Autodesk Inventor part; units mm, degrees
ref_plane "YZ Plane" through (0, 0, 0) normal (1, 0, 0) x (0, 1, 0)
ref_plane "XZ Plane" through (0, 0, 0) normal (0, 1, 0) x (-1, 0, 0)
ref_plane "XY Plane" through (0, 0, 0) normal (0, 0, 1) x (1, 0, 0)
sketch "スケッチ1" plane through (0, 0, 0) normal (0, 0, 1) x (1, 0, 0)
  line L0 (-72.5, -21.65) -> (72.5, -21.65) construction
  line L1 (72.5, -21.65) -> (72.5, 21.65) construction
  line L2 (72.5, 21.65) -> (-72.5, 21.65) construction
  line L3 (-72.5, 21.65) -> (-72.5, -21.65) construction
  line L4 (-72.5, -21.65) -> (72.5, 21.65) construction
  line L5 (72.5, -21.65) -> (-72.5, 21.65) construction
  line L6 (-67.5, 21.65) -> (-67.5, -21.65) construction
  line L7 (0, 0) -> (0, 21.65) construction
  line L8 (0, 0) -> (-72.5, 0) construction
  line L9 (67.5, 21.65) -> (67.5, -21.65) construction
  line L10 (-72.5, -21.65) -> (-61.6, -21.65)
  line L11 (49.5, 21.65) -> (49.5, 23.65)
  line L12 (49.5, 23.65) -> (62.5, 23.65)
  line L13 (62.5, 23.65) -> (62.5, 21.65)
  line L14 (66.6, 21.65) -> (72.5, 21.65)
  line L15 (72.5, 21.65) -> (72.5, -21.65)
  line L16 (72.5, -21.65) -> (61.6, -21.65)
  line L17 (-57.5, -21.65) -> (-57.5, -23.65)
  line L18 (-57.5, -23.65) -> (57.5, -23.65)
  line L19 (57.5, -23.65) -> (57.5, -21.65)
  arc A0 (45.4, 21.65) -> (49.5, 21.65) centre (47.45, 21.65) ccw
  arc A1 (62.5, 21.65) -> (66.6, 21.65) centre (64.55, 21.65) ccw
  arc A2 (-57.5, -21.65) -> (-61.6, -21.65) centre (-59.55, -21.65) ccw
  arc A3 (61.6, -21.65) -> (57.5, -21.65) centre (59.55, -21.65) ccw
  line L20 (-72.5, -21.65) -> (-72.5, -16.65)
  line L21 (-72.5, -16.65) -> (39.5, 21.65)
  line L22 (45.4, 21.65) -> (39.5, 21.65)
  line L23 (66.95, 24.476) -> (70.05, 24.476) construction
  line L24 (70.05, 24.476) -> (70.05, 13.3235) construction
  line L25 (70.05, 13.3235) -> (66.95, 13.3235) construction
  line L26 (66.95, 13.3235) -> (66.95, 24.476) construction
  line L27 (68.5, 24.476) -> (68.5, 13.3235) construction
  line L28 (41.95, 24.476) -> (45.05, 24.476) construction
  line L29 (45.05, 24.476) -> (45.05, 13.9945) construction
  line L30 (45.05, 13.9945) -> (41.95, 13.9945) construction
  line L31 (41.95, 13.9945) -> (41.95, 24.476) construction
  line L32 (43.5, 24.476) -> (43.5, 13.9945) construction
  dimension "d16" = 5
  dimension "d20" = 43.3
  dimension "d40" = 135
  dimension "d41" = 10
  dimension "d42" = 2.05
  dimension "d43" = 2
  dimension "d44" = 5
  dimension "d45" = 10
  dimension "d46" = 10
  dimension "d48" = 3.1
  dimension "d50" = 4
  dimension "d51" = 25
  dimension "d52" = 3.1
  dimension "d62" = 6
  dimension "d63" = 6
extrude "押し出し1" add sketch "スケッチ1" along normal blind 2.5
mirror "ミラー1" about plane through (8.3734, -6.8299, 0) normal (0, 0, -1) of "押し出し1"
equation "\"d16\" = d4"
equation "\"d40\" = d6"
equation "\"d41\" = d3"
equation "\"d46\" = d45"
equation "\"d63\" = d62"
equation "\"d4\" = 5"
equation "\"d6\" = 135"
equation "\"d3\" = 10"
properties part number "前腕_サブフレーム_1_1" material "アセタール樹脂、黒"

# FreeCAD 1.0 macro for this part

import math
import FreeCAD as App
import Part
import Sketcher

V = App.Vector

doc = App.newDocument("Part")
body = doc.addObject("PartDesign::Body", "Body")

sketch1 = body.newObject("Sketcher::SketchObject", "Sketch")
sketch1.AttachmentSupport = (doc.getObject("XY_Plane"), [""])
sketch1.MapMode = "FlatFace"
sketch1.addGeometry([
    Part.LineSegment(V(-72.5, -16.65, 0), V(-72.5, -21.65, 0)),
    Part.LineSegment(V(-72.5, -21.65, 0), V(-61.6, -21.65, 0)),
    Part.ArcOfCircle(Part.Circle(V(-59.55, -21.65, 0), V(0, 0, 1), 2.05), math.radians(0), math.radians(180)),
    Part.LineSegment(V(-57.5, -21.65, 0), V(-57.5, -23.65, 0)),
    Part.LineSegment(V(-57.5, -23.65, 0), V(57.5, -23.65, 0)),
    Part.LineSegment(V(57.5, -23.65, 0), V(57.5, -21.65, 0)),
    Part.ArcOfCircle(Part.Circle(V(59.55, -21.65, 0), V(0, 0, 1), 2.05), math.radians(0), math.radians(180)),
    Part.LineSegment(V(61.6, -21.65, 0), V(72.5, -21.65, 0)),
    Part.LineSegment(V(72.5, -21.65, 0), V(72.5, 21.65, 0)),
    Part.LineSegment(V(72.5, 21.65, 0), V(66.6, 21.65, 0)),
    Part.ArcOfCircle(Part.Circle(V(64.55, 21.65, 0), V(0, 0, 1), 2.05), math.radians(180), math.radians(360)),
    Part.LineSegment(V(62.5, 21.65, 0), V(62.5, 23.65, 0)),
    Part.LineSegment(V(62.5, 23.65, 0), V(49.5, 23.65, 0)),
    Part.LineSegment(V(49.5, 23.65, 0), V(49.5, 21.65, 0)),
    Part.ArcOfCircle(Part.Circle(V(47.45, 21.65, 0), V(0, 0, 1), 2.05), math.radians(180), math.radians(360)),
    Part.LineSegment(V(45.4, 21.65, 0), V(39.5, 21.65, 0)),
    Part.LineSegment(V(39.5, 21.65, 0), V(-72.5, -16.65, 0)),
], False)
sketch1.addConstraint([
    Sketcher.Constraint("Coincident", 0, 2, 1, 1),
    Sketcher.Constraint("Coincident", 1, 2, 2, 2),
    Sketcher.Constraint("Tangent", 2, 1, 3, 1),
    Sketcher.Constraint("Coincident", 3, 2, 4, 1),
    Sketcher.Constraint("Coincident", 4, 2, 5, 1),
    Sketcher.Constraint("Tangent", 5, 2, 6, 2),
    Sketcher.Constraint("Coincident", 6, 1, 7, 1),
    Sketcher.Constraint("Coincident", 7, 2, 8, 1),
    Sketcher.Constraint("Coincident", 8, 2, 9, 1),
    Sketcher.Constraint("Coincident", 9, 2, 10, 2),
    Sketcher.Constraint("Tangent", 10, 1, 11, 1),
    Sketcher.Constraint("Coincident", 11, 2, 12, 1),
    Sketcher.Constraint("Coincident", 12, 2, 13, 1),
    Sketcher.Constraint("Tangent", 13, 2, 14, 2),
    Sketcher.Constraint("Coincident", 14, 1, 15, 1),
    Sketcher.Constraint("Coincident", 15, 2, 16, 1),
    Sketcher.Constraint("Coincident", 16, 2, 0, 1),
    Sketcher.Constraint("Vertical", 0),
    Sketcher.Constraint("Horizontal", 1),
    Sketcher.Constraint("Vertical", 3),
    Sketcher.Constraint("Horizontal", 4),
    Sketcher.Constraint("Vertical", 5),
    Sketcher.Constraint("Horizontal", 7),
    Sketcher.Constraint("Vertical", 8),
    Sketcher.Constraint("Horizontal", 9),
    Sketcher.Constraint("Vertical", 11),
    Sketcher.Constraint("Horizontal", 12),
    Sketcher.Constraint("Vertical", 13),
    Sketcher.Constraint("Horizontal", 15),
    Sketcher.Constraint("Equal", 2, 6),
    Sketcher.Constraint("Equal", 6, 10),
    Sketcher.Constraint("Equal", 10, 14),
    Sketcher.Constraint("Symmetric", 0, 2, 8, 2, -1, 1),
    Sketcher.Constraint("Symmetric", 2, 3, 6, 3, -2),
    Sketcher.Constraint("Horizontal", 10, 3, 14, 3),
    Sketcher.Constraint("Horizontal", 6, 3, 0, 2),
    Sketcher.Constraint("Horizontal", 5, 2, 6, 1),
    Sketcher.Constraint("Horizontal", 14, 3, 8, 2),
    Sketcher.Constraint("Horizontal", 13, 2, 14, 1),
    Sketcher.Constraint("Equal", 9, 15),
    Sketcher.Constraint("Equal", 5, 11),
    Sketcher.Constraint("DistanceY", 0, 2, 0, 1, 5.0),
    Sketcher.Constraint("DistanceY", 3, 2, 3, 1, 2.0),
    Sketcher.Constraint("Radius", 2, 2.05),
    Sketcher.Constraint("DistanceY", 8, 1, 8, 2, 43.3),
    Sketcher.Constraint("DistanceX", 6, 3, 10, 3, 5.0),
    Sketcher.Constraint("DistanceX", 10, 1, 8, 2, 10.0),
    Sketcher.Constraint("DistanceX", 4, 1, 4, 2, 115.0),
    Sketcher.Constraint("DistanceX", 12, 2, 12, 1, 13.0),
])
pad1 = body.newObject("PartDesign::Pad", "Pad")
pad1.Profile = sketch1
pad1.Length = 2.5
doc.recompute()

mirrored = body.newObject("PartDesign::Mirrored", "Mirrored")
mirrored.Originals = [pad1]
mirrored.MirrorPlane = (doc.getObject("XY_Plane"), [""])
body.Tip = mirrored

doc.recompute()
